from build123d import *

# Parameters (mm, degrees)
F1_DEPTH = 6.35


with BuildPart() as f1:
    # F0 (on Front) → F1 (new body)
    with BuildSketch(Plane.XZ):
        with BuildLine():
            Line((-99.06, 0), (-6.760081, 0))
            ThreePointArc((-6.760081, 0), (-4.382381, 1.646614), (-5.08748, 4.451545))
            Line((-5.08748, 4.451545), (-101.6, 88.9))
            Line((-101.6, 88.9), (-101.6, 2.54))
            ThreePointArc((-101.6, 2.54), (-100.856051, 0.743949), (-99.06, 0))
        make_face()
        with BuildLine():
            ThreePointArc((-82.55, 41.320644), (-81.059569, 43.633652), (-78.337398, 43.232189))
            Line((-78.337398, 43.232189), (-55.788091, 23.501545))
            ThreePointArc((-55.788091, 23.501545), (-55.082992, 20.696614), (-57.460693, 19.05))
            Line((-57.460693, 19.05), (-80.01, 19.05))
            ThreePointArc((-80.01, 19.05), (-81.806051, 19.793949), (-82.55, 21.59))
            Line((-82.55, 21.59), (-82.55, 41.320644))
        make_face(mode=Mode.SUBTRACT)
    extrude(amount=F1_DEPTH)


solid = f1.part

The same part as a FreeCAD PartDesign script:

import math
import FreeCAD as App
import Part
import Sketcher

V = App.Vector
Q = App.Units.Quantity

doc = App.newDocument("Part")
params = doc.addObject("Spreadsheet::Sheet", "Params")
for row, (alias, value) in enumerate([
    ("sketch1_radius", "0.1 in"),
    ("sketch1_height", "3.4 in"),
    ("pad1_length", "0.25 in"),
], start=1):
    params.set(f"A{row}", alias)
    params.set(f"B{row}", "=" + value)
    params.setAlias(f"B{row}", alias)

body = doc.addObject("PartDesign::Body", "Body")

# Sketch on XZ plane
sketch1 = body.newObject("Sketcher::SketchObject", "Sketch")
sketch1.AttachmentSupport = (doc.getObject("XZ_Plane"), [""])
sketch1.MapMode = "FlatFace"
sketch1.addGeometry([
    Part.LineSegment(V(-99.1, 0, 0), V(-6.8, 0, 0)),  # 0
    Part.ArcOfCircle(Part.Circle(V(-6.8, 2.5, 0), V(0, 0, 1), 2.5), math.radians(-90), math.radians(49)),  # 1
    Part.LineSegment(V(-5.1, 4.5, 0), V(-101.6, 88.9, 0)),  # 2
    Part.LineSegment(V(-101.6, 88.9, 0), V(-101.6, 2.5, 0)),  # 3
    Part.ArcOfCircle(Part.Circle(V(-99.1, 2.5, 0), V(0, 0, 1), 2.5), math.radians(-180), math.radians(-90)),  # 4
    Part.LineSegment(V(-82.5, 21.6, 0), V(-82.5, 41.3, 0)),  # 5
    Part.ArcOfCircle(Part.Circle(V(-80, 41.3, 0), V(0, 0, 1), 2.5), math.radians(49), math.radians(180)),  # 6
    Part.LineSegment(V(-78.3, 43.2, 0), V(-55.8, 23.5, 0)),  # 7
    Part.ArcOfCircle(Part.Circle(V(-57.5, 21.6, 0), V(0, 0, 1), 2.5), math.radians(-90), math.radians(49)),  # 8
    Part.LineSegment(V(-57.5, 19.1, 0), V(-80, 19.1, 0)),  # 9
    Part.ArcOfCircle(Part.Circle(V(-80, 21.6, 0), V(0, 0, 1), 2.5), math.radians(-180), math.radians(-90)),  # 10
], False)
sketch1.addConstraint([
    Sketcher.Constraint("Tangent", 0, 2, 1, 1),
    Sketcher.Constraint("Tangent", 1, 2, 2, 1),
    Sketcher.Constraint("Coincident", 2, 2, 3, 1),
    Sketcher.Constraint("Tangent", 3, 2, 4, 1),
    Sketcher.Constraint("Tangent", 4, 2, 0, 1),
    Sketcher.Constraint("Tangent", 5, 2, 6, 2),
    Sketcher.Constraint("Tangent", 6, 1, 7, 1),
    Sketcher.Constraint("Tangent", 7, 2, 8, 2),
    Sketcher.Constraint("Tangent", 8, 1, 9, 1),
    Sketcher.Constraint("Tangent", 9, 2, 10, 2),
    Sketcher.Constraint("Tangent", 10, 1, 5, 1),
    Sketcher.Constraint("Horizontal", 0),
    Sketcher.Constraint("Vertical", 3),
    Sketcher.Constraint("Vertical", 5),
    Sketcher.Constraint("Horizontal", 9),
    Sketcher.Constraint("Equal", 1, 4),
    Sketcher.Constraint("Equal", 4, 6),
    Sketcher.Constraint("Equal", 6, 8),
    Sketcher.Constraint("Equal", 8, 10),
    Sketcher.Constraint("PointOnObject", 0, 2, -1),
    Sketcher.Constraint("Parallel", 2, 7),
    Sketcher.Constraint("Radius", 1, Q("0.1 in")),
    Sketcher.Constraint("DistanceY", 3, 2, 3, 1, Q("3.4 in")),
    Sketcher.Constraint("DistanceX", 2, 2, -1, 1, Q("4 in")),
    Sketcher.Constraint("DistanceX", 6, 3, -1, 1, Q("3.15 in")),
    Sketcher.Constraint("DistanceY", -1, 1, 8, 3, Q("0.85 in")),
    Sketcher.Constraint("DistanceX", 0, 1, 0, 2, 92.299919),
    Sketcher.Constraint("DistanceY", 1, 2, 6, 3, 36.869099),
])
sketch1.setExpression("Constraints[21]", "Params.sketch1_radius")
sketch1.setExpression("Constraints[22]", "Params.sketch1_height")
pad1 = body.newObject("PartDesign::Pad", "Pad")
pad1.Profile = sketch1
pad1.setExpression("Length", "Params.pad1_length")

doc.recompute()
